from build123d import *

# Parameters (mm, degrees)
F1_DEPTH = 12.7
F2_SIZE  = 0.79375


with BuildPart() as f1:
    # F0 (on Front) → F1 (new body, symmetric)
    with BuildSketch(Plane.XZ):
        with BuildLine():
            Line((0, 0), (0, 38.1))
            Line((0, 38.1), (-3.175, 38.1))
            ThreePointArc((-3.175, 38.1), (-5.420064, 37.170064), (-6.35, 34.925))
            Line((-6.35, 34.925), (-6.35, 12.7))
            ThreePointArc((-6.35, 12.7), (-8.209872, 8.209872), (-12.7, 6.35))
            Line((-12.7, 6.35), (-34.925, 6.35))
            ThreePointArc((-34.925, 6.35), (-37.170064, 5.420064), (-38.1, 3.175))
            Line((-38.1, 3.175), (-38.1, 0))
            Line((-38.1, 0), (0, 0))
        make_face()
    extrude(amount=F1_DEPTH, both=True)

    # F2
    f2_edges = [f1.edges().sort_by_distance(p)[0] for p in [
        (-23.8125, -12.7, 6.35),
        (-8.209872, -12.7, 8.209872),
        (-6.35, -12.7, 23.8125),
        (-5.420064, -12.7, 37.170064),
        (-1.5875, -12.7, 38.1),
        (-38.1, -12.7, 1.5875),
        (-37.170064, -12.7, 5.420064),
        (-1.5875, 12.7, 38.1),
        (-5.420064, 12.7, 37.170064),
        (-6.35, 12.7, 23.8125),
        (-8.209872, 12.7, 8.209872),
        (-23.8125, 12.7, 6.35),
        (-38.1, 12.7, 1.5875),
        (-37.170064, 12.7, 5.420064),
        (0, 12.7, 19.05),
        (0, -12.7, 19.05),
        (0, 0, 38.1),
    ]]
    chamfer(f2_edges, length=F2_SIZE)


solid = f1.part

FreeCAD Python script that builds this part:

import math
import FreeCAD as App
import Part
import Sketcher
from FreeCAD import Vector
Q = App.Units.Quantity


def edges_at(feature, points):
    """Names of the edges that pass closest to the given points."""
    edges = feature.Shape.Edges
    near = lambda p: min(range(len(edges)), key=lambda i: edges[i].distToShape(Part.Vertex(*p))[0])
    return sorted({f"Edge{near(p) + 1}" for p in points})

doc = App.newDocument("Part")
params = doc.addObject("Spreadsheet::Sheet", "Params")
for row, (alias, value) in enumerate([
    ("sketch1_radius", "0.25 in"),
    ("sketch1_width", "1.5 in"),
    ("sketch1_radius2", "0.125 in"),
    ("pad1_length", "1 in"),
    ("chamfer_size", "0.03125 in"),
], start=1):
    params.set(f"A{row}", alias)
    params.set(f"B{row}", "=" + value)
    params.setAlias(f"B{row}", alias)

body = doc.addObject("PartDesign::Body", "Body")

sketch1 = body.newObject("Sketcher::SketchObject", "Sketch")
sketch1.AttachmentSupport = (doc.getObject("XZ_Plane"), [""])
sketch1.MapMode = "FlatFace"
sketch1.addGeometry([
    Part.LineSegment(Vector(0, 0, 0), Vector(0, 38.1, 0)),
    Part.LineSegment(Vector(0, 38.1, 0), Vector(-3.2, 38.1, 0)),
    Part.ArcOfCircle(Part.Circle(Vector(-3.2, 34.9, 0), Vector(0, 0, 1), 3.2), math.radians(90), math.radians(180)),
    Part.LineSegment(Vector(-6.3, 34.9, 0), Vector(-6.3, 12.7, 0)),
    Part.ArcOfCircle(Part.Circle(Vector(-12.7, 12.7, 0), Vector(0, 0, 1), 6.4), math.radians(-90), math.radians(0)),
    Part.LineSegment(Vector(-12.7, 6.3, 0), Vector(-34.9, 6.3, 0)),
    Part.ArcOfCircle(Part.Circle(Vector(-34.9, 3.2, 0), Vector(0, 0, 1), 3.2), math.radians(90), math.radians(180)),
    Part.LineSegment(Vector(-38.1, 3.2, 0), Vector(-38.1, 0, 0)),
    Part.LineSegment(Vector(-38.1, 0, 0), Vector(0, 0, 0)),
], False)
sketch1.addConstraint([
    Sketcher.Constraint("Coincident", 0, 2, 1, 1),
    Sketcher.Constraint("Tangent", 1, 2, 2, 1),
    Sketcher.Constraint("Tangent", 2, 2, 3, 1),
    Sketcher.Constraint("Tangent", 3, 2, 4, 2),
    Sketcher.Constraint("Tangent", 4, 1, 5, 1),
    Sketcher.Constraint("Tangent", 5, 2, 6, 1),
    Sketcher.Constraint("Tangent", 6, 2, 7, 1),
    Sketcher.Constraint("Coincident", 7, 2, 8, 1),
    Sketcher.Constraint("Coincident", 8, 2, 0, 1),
    Sketcher.Constraint("Vertical", 0),
    Sketcher.Constraint("Horizontal", 1),
    Sketcher.Constraint("Vertical", 3),
    Sketcher.Constraint("Horizontal", 5),
    Sketcher.Constraint("Vertical", 7),
    Sketcher.Constraint("Horizontal", 8),
    Sketcher.Constraint("Coincident", 8, 2, -1, 1),
    Sketcher.Constraint("Equal", 2, 6),
    Sketcher.Constraint("Equal", 8, 0),
    Sketcher.Constraint("Equal", 5, 3),
    Sketcher.Constraint("Radius", 4, Q("0.25 in")),
    Sketcher.Constraint("DistanceX", 8, 1, 8, 2, Q("1.5 in")),
    Sketcher.Constraint("Radius", 2, Q("0.125 in")),
    Sketcher.Constraint("DistanceY", 4, 3, 0, 2, Q("1 in")),
])
sketch1.setExpression("Constraints[19]", "Params.sketch1_radius")
sketch1.setExpression("Constraints[20]", "Params.sketch1_width")
sketch1.setExpression("Constraints[21]", "Params.sketch1_radius2")
pad1 = body.newObject("PartDesign::Pad", "Pad")
pad1.Profile = sketch1
pad1.setExpression("Length", "Params.pad1_length")
pad1.Midplane = True
doc.recompute()

chamfer = body.newObject("PartDesign::Chamfer", "Chamfer")
chamfer.Base = (pad1, edges_at(pad1, [
    (-23.812, -12.7, 6.35),
    (-8.21, -12.7, 8.21),
    (-6.35, -12.7, 23.812),
    (-5.42, -12.7, 37.17),
    (-1.587, -12.7, 38.1),
    (-38.1, -12.7, 1.587),
    (-37.17, -12.7, 5.42),
    (-1.587, 12.7, 38.1),
    (-5.42, 12.7, 37.17),
    (-6.35, 12.7, 23.812),
    (-8.21, 12.7, 8.21),
    (-23.812, 12.7, 6.35),
    (-38.1, 12.7, 1.587),
    (-37.17, 12.7, 5.42),
    (0, 12.7, 19.05),
    (0, -12.7, 19.05),
    (0, 0, 38.1),
]))
chamfer.setExpression("Size", "Params.chamfer_size")

doc.recompute()
